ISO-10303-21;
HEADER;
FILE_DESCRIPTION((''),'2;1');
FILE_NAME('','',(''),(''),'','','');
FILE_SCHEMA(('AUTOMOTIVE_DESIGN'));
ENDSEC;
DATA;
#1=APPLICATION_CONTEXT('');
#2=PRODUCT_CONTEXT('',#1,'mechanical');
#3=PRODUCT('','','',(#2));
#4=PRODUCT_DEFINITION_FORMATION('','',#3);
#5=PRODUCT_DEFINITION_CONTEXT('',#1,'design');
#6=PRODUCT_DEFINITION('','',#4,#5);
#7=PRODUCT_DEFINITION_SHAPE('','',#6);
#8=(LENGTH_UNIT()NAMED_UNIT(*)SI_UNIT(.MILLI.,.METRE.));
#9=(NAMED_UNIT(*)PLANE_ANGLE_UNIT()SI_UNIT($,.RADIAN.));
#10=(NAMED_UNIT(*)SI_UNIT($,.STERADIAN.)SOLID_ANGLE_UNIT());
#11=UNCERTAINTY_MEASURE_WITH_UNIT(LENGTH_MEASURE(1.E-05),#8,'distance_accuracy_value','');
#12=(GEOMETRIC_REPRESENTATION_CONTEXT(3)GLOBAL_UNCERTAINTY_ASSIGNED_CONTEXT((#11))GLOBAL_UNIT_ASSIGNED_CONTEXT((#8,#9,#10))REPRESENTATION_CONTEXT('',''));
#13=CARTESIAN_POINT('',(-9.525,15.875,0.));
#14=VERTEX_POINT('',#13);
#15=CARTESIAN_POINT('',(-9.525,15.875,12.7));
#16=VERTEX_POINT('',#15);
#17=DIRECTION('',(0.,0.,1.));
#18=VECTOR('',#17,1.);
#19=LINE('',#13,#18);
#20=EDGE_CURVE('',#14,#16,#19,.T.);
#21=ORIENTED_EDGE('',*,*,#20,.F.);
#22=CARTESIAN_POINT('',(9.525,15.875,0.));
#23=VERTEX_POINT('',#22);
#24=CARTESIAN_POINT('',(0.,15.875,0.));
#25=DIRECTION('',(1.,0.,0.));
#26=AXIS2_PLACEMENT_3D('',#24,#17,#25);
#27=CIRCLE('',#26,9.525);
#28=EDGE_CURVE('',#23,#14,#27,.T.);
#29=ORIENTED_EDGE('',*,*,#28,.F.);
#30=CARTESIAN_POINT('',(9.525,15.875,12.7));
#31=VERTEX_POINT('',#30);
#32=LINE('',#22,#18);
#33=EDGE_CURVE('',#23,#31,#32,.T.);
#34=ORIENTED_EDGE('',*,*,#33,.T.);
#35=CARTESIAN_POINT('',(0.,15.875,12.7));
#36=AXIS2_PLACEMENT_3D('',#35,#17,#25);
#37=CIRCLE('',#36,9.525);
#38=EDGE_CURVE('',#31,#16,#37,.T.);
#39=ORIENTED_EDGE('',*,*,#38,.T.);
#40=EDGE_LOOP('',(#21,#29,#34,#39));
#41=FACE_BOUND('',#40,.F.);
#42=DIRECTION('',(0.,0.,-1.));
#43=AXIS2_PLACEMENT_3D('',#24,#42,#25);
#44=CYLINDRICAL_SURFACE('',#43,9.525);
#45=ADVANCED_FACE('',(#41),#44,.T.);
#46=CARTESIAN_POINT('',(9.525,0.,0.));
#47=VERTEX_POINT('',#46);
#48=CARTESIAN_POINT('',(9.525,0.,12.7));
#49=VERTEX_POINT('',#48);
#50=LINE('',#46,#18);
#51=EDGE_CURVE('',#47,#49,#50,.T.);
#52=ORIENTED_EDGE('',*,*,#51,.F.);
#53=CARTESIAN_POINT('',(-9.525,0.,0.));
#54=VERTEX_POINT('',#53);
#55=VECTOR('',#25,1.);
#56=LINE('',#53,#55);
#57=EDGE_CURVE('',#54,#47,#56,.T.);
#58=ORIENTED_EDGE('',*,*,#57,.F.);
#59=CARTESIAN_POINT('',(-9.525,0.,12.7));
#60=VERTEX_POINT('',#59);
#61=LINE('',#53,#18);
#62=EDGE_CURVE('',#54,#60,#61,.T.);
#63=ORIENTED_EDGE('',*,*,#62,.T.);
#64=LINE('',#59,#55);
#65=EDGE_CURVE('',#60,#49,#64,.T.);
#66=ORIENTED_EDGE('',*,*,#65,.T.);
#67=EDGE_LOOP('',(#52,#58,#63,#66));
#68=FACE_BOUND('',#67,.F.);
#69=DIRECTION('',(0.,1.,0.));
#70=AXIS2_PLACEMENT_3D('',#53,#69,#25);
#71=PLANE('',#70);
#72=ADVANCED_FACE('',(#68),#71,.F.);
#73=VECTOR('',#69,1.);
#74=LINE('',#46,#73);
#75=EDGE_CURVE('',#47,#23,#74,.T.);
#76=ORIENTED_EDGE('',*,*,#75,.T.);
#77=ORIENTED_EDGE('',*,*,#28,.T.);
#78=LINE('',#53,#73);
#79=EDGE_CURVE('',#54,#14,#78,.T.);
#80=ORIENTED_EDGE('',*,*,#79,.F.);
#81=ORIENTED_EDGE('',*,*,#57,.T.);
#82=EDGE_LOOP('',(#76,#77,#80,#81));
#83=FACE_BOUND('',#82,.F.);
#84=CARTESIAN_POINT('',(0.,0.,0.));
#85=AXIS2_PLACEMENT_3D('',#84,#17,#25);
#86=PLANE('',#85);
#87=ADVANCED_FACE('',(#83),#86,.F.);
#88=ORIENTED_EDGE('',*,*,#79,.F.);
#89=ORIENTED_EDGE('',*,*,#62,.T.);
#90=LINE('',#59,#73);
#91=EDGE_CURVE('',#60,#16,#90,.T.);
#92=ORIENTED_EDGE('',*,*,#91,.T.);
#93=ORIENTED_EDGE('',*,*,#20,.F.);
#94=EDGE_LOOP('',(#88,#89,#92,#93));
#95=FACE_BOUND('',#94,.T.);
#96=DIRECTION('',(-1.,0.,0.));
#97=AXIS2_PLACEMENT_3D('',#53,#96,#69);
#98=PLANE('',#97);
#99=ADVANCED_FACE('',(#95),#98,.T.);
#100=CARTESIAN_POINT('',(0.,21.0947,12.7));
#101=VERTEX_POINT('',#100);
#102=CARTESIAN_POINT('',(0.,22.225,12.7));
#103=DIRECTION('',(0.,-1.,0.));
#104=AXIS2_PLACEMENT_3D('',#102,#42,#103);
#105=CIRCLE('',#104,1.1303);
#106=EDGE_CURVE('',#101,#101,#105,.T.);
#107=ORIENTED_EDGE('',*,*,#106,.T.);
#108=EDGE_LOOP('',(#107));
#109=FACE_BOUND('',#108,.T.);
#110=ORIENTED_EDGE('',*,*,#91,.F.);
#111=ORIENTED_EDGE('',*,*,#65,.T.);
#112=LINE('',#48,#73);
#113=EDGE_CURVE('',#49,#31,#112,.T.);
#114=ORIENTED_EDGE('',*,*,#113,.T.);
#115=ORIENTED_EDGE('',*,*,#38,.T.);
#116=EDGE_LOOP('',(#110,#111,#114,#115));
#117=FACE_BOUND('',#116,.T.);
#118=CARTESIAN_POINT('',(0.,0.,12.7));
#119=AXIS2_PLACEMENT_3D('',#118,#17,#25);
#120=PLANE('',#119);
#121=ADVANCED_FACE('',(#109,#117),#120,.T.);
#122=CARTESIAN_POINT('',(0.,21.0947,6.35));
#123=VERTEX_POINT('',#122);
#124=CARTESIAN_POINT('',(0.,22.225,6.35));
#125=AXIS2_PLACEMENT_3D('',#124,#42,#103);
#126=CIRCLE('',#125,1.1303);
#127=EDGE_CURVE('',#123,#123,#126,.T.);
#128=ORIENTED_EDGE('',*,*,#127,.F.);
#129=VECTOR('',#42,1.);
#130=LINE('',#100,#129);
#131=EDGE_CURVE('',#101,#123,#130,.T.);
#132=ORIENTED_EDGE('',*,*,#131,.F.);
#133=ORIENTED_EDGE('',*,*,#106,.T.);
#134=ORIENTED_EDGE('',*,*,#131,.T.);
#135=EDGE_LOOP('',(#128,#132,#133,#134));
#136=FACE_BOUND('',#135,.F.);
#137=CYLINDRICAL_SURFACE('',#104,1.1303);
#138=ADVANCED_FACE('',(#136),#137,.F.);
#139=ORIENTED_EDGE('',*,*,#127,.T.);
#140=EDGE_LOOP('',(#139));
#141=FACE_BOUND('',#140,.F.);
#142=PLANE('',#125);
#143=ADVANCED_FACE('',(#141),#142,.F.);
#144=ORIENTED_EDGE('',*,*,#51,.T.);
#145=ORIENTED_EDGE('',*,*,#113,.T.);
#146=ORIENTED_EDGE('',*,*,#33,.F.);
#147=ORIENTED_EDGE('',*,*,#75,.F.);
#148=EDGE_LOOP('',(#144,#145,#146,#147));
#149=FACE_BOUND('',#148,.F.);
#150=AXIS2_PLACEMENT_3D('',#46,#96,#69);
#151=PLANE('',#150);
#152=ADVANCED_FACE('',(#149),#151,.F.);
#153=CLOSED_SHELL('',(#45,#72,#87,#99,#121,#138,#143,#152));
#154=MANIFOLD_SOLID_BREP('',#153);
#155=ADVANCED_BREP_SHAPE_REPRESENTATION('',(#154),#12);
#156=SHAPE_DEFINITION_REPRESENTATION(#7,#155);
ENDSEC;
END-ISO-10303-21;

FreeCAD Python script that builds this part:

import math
import FreeCAD as App
import Part
import Sketcher
from FreeCAD import Vector
Q = App.Units.Quantity

doc = App.newDocument("Part")
params = doc.addObject("Spreadsheet::Sheet", "Params")
for row, (alias, value) in enumerate([
    ("sketch1_radius", "0.375 in"),
    ("sketch1_height", "0.625 in"),
    ("pad1_length", "0.5 in"),
    ("sketch2_diameter", "0.089 in"),
    ("hole_diameter", "0.089 in"),
    ("hole_depth", "0.25 in"),
], start=1):
    params.set(f"A{row}", alias)
    params.set(f"B{row}", "=" + value)
    params.setAlias(f"B{row}", alias)

body = doc.addObject("PartDesign::Body", "Body")

sketch1 = body.newObject("Sketcher::SketchObject", "Sketch")
sketch1.AttachmentSupport = (doc.getObject("XY_Plane"), [""])
sketch1.MapMode = "FlatFace"
sketch1.addGeometry([
    Part.LineSegment(Vector(-10, 16, 0), Vector(-10, 0, 0)),
    Part.LineSegment(Vector(-10, 0, 0), Vector(10, 0, 0)),
    Part.LineSegment(Vector(10, 0, 0), Vector(10, 16, 0)),
    Part.ArcOfCircle(Part.Circle(Vector(0, 16, 0), Vector(0, 0, 1), 10), math.radians(0), math.radians(180)),
], False)
sketch1.addConstraint([
    Sketcher.Constraint("Coincident", 0, 2, 1, 1),
    Sketcher.Constraint("Coincident", 1, 2, 2, 1),
    Sketcher.Constraint("Tangent", 2, 2, 3, 1),
    Sketcher.Constraint("Tangent", 3, 2, 0, 1),
    Sketcher.Constraint("Vertical", 0),
    Sketcher.Constraint("Horizontal", 1),
    Sketcher.Constraint("Vertical", 2),
    Sketcher.Constraint("Symmetric", 0, 2, 1, 2, -1, 1),
    Sketcher.Constraint("Radius", 3, Q("0.375 in")),
    Sketcher.Constraint("DistanceY", 0, 2, 0, 1, Q("0.625 in")),
])
sketch1.setExpression("Constraints[8]", "Params.sketch1_radius")
sketch1.setExpression("Constraints[9]", "Params.sketch1_height")
pad1 = body.newObject("PartDesign::Pad", "Pad")
pad1.Profile = sketch1
pad1.setExpression("Length", "Params.pad1_length")

sketch2 = body.newObject("Sketcher::SketchObject", "Sketch001")
sketch2.AttachmentSupport = (doc.getObject("XY_Plane"), [""])
sketch2.MapMode = "FlatFace"
sketch2.AttachmentOffset = App.Placement(Vector(0, 0, 0.5 * 25.4), App.Rotation())
sketch2.addGeometry(Part.Circle(Vector(0, 22.2, 0), Vector(0, 0, 1), 1.1), False)
sketch2.addConstraint([
    Sketcher.Constraint("PointOnObject", 0, 3, -2),
    Sketcher.Constraint("Diameter", 0, Q("0.089 in")),
    Sketcher.Constraint("DistanceY", -1, 1, 0, 3, Q("0.875 in")),
])
sketch2.setExpression("Constraints[1]", "Params.sketch2_diameter")
doc.recompute()
hole = body.newObject("PartDesign::Hole", "Hole")
hole.Profile = sketch2
hole.ThreadType = "None"
hole.setExpression("Diameter", "Params.hole_diameter")
hole.DepthType = "Dimension"
hole.setExpression("Depth", "Params.hole_depth")
hole.DrillPoint = "Flat"

doc.recompute()
